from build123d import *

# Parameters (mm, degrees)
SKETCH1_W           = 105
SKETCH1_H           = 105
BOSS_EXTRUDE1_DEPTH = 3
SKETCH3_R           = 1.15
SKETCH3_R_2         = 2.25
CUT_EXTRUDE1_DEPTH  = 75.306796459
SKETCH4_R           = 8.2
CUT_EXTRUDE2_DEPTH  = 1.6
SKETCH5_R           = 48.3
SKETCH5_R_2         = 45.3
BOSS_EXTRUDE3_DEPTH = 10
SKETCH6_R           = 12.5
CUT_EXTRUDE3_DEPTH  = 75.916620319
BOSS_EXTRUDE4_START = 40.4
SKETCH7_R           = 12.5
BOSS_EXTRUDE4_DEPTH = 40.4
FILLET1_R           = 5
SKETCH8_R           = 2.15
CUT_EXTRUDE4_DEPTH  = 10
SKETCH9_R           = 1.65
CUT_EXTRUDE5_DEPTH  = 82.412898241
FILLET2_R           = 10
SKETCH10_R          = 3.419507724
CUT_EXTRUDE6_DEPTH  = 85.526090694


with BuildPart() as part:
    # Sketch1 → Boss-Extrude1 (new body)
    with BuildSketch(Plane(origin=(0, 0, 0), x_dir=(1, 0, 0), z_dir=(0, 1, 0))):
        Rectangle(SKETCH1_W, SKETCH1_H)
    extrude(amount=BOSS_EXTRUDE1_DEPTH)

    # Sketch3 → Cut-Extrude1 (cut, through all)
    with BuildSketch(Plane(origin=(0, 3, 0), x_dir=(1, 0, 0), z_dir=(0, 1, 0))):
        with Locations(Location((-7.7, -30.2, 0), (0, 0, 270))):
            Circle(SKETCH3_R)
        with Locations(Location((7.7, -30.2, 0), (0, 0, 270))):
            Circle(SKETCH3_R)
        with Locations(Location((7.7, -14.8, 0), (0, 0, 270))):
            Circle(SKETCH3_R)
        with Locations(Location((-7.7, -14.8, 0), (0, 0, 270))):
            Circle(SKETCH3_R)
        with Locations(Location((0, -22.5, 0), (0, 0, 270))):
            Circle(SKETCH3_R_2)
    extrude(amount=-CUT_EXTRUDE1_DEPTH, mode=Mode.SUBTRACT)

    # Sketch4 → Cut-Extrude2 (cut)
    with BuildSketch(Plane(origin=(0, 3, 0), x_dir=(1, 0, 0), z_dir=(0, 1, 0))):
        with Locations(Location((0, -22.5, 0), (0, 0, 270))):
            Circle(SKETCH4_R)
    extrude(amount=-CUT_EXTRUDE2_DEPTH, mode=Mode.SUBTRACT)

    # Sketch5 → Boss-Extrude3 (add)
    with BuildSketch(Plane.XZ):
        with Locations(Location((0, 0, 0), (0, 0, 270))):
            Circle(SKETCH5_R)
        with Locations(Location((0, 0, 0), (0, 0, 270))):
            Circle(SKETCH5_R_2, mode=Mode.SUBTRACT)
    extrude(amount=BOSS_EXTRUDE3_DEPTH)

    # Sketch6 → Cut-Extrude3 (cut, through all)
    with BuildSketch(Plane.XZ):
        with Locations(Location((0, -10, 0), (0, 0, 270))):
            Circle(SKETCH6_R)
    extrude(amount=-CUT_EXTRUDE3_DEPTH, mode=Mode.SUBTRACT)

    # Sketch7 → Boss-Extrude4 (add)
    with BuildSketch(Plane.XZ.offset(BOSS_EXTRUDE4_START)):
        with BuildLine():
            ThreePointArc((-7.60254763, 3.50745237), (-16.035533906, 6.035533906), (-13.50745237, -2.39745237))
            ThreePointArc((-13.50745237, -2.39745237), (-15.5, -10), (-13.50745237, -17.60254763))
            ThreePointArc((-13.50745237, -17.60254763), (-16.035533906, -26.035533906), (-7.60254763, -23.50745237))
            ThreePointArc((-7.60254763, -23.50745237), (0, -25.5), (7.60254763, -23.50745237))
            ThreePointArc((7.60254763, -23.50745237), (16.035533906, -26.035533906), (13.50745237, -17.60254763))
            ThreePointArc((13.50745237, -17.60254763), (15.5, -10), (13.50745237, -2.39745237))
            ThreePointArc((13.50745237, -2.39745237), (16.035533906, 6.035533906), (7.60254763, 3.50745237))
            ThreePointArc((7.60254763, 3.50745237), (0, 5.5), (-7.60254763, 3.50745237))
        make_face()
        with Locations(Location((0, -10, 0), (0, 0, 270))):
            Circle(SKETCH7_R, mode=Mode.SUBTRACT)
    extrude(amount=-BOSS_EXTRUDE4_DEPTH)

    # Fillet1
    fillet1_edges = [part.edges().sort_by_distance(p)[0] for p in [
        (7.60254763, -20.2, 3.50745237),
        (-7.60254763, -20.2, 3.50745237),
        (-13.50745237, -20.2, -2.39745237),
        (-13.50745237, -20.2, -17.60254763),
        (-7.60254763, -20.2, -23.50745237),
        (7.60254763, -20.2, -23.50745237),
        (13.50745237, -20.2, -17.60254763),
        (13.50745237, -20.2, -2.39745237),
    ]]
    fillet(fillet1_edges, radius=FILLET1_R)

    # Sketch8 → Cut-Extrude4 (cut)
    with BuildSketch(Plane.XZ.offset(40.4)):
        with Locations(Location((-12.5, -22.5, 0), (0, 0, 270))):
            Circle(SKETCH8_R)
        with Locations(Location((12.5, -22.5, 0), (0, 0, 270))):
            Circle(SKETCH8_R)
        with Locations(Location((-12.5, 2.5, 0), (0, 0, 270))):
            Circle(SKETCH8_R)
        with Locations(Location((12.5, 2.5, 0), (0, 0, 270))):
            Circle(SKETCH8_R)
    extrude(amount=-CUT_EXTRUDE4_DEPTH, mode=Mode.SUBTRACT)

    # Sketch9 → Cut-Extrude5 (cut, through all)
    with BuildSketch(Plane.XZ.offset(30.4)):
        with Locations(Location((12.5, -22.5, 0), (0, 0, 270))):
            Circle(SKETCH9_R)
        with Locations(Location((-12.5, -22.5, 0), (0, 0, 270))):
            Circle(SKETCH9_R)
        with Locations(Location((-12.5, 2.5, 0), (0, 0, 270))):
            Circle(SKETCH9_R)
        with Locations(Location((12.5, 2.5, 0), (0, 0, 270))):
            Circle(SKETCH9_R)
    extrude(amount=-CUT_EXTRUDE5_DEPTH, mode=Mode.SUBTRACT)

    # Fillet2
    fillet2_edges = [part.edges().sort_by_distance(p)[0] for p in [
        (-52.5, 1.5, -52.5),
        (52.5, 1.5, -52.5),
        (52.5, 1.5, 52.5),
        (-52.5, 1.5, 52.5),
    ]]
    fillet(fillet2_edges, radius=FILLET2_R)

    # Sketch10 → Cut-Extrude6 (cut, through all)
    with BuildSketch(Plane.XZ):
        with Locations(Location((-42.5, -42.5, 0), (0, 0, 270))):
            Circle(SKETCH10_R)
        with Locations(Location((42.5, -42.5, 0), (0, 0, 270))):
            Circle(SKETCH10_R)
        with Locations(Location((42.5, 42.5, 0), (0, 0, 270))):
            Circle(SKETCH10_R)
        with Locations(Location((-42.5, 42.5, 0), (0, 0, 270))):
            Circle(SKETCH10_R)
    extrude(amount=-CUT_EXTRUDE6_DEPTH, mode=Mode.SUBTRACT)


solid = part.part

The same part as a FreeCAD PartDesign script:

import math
import FreeCAD as App
import Part
import Sketcher
from FreeCAD import Vector
Q = App.Units.Quantity


def edges_at(feature, points):
    """Names of the edges that pass closest to the given points."""
    edges = feature.Shape.Edges
    near = lambda p: min(range(len(edges)), key=lambda i: edges[i].distToShape(Part.Vertex(*p))[0])
    return sorted({f"Edge{near(p) + 1}" for p in points})

doc = App.newDocument("Part")
body = doc.addObject("PartDesign::Body", "Body")

sketch1 = body.newObject("Sketcher::SketchObject", "Sketch")
sketch1.AttachmentSupport = (doc.getObject("XZ_Plane"), [""])
sketch1.MapMode = "FlatFace"
sketch1.addGeometry([
    Part.LineSegment(Vector(-52, -52, 0), Vector(-52, 52, 0)),
    Part.LineSegment(Vector(-52, 52, 0), Vector(52, 52, 0)),
    Part.LineSegment(Vector(52, 52, 0), Vector(52, -52, 0)),
    Part.LineSegment(Vector(52, -52, 0), Vector(-52, -52, 0)),
], False)
sketch1.addConstraint([
    Sketcher.Constraint("Coincident", 0, 2, 1, 1),
    Sketcher.Constraint("Coincident", 1, 2, 2, 1),
    Sketcher.Constraint("Coincident", 2, 2, 3, 1),
    Sketcher.Constraint("Coincident", 3, 2, 0, 1),
    Sketcher.Constraint("Vertical", 0),
    Sketcher.Constraint("Horizontal", 1),
    Sketcher.Constraint("Vertical", 2),
    Sketcher.Constraint("Horizontal", 3),
    Sketcher.Constraint("Symmetric", 0, 2, 2, 2, -1, 1),
    Sketcher.Constraint("Equal", 3, 0),
    Sketcher.Constraint("DistanceX", 1, 1, 1, 2, Q("105 mm")),
])
pad1 = body.newObject("PartDesign::Pad", "Pad")
pad1.Profile = sketch1
pad1.Length = 3
pad1.Reversed = True

sketch2 = body.newObject("Sketcher::SketchObject", "Sketch001")
sketch2.AttachmentSupport = (doc.getObject("XZ_Plane"), [""])
sketch2.MapMode = "FlatFace"
sketch2.AttachmentOffset = App.Placement(Vector(0, 0, -3), App.Rotation())
sketch2.addGeometry([
    Part.Circle(Vector(-7.7, 30.2, 0), Vector(0, 0, 1), 1.1),
    Part.Circle(Vector(7.7, 30.2, 0), Vector(0, 0, 1), 1.1),
    Part.Circle(Vector(7.7, 14.8, 0), Vector(0, 0, 1), 1.1),
    Part.Circle(Vector(-7.7, 14.8, 0), Vector(0, 0, 1), 1.1),
    Part.Circle(Vector(0, 22.5, 0), Vector(0, 0, 1), 2.2),
], False)
sketch2.addConstraint([
    Sketcher.Constraint("Equal", 0, 1),
    Sketcher.Constraint("Equal", 1, 2),
    Sketcher.Constraint("Equal", 2, 3),
    Sketcher.Constraint("Symmetric", 0, 3, 1, 3, -2),
    Sketcher.Constraint("Symmetric", 2, 3, 3, 3, -2),
    Sketcher.Constraint("PointOnObject", 4, 3, -2),
    Sketcher.Constraint("Vertical", 1, 3, 2, 3),
    Sketcher.Constraint("Diameter", 0, Q("2.3 mm")),
    Sketcher.Constraint("Diameter", 4, Q("4.5 mm")),
    Sketcher.Constraint("DistanceX", 0, 3, -1, 1, Q("7.7 mm")),
    Sketcher.Constraint("DistanceY", -1, 1, 0, 3, Q("30.2 mm")),
    Sketcher.Constraint("DistanceY", -1, 1, 2, 3, Q("14.8 mm")),
    Sketcher.Constraint("DistanceY", -1, 1, 4, 3, Q("22.5 mm")),
])
pocket1 = body.newObject("PartDesign::Pocket", "Pocket")
pocket1.Profile = sketch2
pocket1.Type = "ThroughAll"
pocket1.Reversed = True

sketch3 = body.newObject("Sketcher::SketchObject", "Sketch002")
sketch3.AttachmentSupport = (doc.getObject("XZ_Plane"), [""])
sketch3.MapMode = "FlatFace"
sketch3.AttachmentOffset = App.Placement(Vector(0, 0, -3), App.Rotation())
sketch3.addGeometry(Part.Circle(Vector(0, 22, 0), Vector(0, 0, 1), 8), False)
sketch3.addConstraint([
    Sketcher.Constraint("PointOnObject", 0, 3, -2),
    Sketcher.Constraint("Diameter", 0, Q("16.4 mm")),
    Sketcher.Constraint("DistanceY", -1, 1, 0, 3, Q("22.5 mm")),
])
pocket2 = body.newObject("PartDesign::Pocket", "Pocket001")
pocket2.Profile = sketch3
pocket2.Length = 1.6
pocket2.Reversed = True

sketch4 = body.newObject("Sketcher::SketchObject", "Sketch003")
sketch4.AttachmentSupport = (doc.getObject("XZ_Plane"), [""])
sketch4.MapMode = "FlatFace"
sketch4.addGeometry([
    Part.Circle(Vector(0, 0, 0), Vector(0, 0, 1), 48),
    Part.Circle(Vector(0, 0, 0), Vector(0, 0, 1), 45),
], False)
sketch4.addConstraint([
    Sketcher.Constraint("Coincident", 0, 3, -1, 1),
    Sketcher.Constraint("Coincident", 1, 3, -1, 1),
    Sketcher.Constraint("Diameter", 0, Q("96.6 mm")),
    Sketcher.Constraint("Diameter", 1, Q("90.6 mm")),
])
pad2 = body.newObject("PartDesign::Pad", "Pad001")
pad2.Profile = sketch4
pad2.Length = 10

sketch5 = body.newObject("Sketcher::SketchObject", "Sketch004")
sketch5.AttachmentSupport = (doc.getObject("XZ_Plane"), [""])
sketch5.MapMode = "FlatFace"
sketch5.addGeometry(Part.Circle(Vector(0, -10, 0), Vector(0, 0, 1), 12), False)
sketch5.addConstraint([
    Sketcher.Constraint("PointOnObject", 0, 3, -2),
    Sketcher.Constraint("Diameter", 0, Q("25 mm")),
    Sketcher.Constraint("DistanceY", 0, 3, -1, 1, Q("10 mm")),
])
pocket3 = body.newObject("PartDesign::Pocket", "Pocket002")
pocket3.Profile = sketch5
pocket3.Type = "ThroughAll"

sketch6 = body.newObject("Sketcher::SketchObject", "Sketch005")
sketch6.AttachmentSupport = (doc.getObject("XZ_Plane"), [""])
sketch6.MapMode = "FlatFace"
sketch6.AttachmentOffset = App.Placement(Vector(0, 0, 40.4), App.Rotation())
sketch6.addGeometry([
    Part.ArcOfCircle(Part.Circle(Vector(-12, 2, 0), Vector(0, 0, 1), 5), math.radians(12), math.radians(258)),
    Part.ArcOfCircle(Part.Circle(Vector(0, -10, 0), Vector(0, 0, 1), 15), math.radians(151), math.radians(209)),
    Part.ArcOfCircle(Part.Circle(Vector(-12, -22, 0), Vector(0, 0, 1), 5), math.radians(102), math.radians(348)),
    Part.ArcOfCircle(Part.Circle(Vector(0, -10, 0), Vector(0, 0, 1), 15), math.radians(-119), math.radians(-61)),
    Part.ArcOfCircle(Part.Circle(Vector(12, -22, 0), Vector(0, 0, 1), 5), math.radians(-168), math.radians(78)),
    Part.ArcOfCircle(Part.Circle(Vector(0, -10, 0), Vector(0, 0, 1), 15), math.radians(-29), math.radians(29)),
    Part.ArcOfCircle(Part.Circle(Vector(12, 2, 0), Vector(0, 0, 1), 5), math.radians(-78), math.radians(168)),
    Part.ArcOfCircle(Part.Circle(Vector(0, -10, 0), Vector(0, 0, 1), 15), math.radians(61), math.radians(119)),
    Part.Circle(Vector(0, -10, 0), Vector(0, 0, 1), 12),
], False)
sketch6.addConstraint([
    Sketcher.Constraint("Coincident", 0, 2, 1, 1),
    Sketcher.Constraint("Coincident", 1, 2, 2, 1),
    Sketcher.Constraint("Coincident", 2, 2, 3, 1),
    Sketcher.Constraint("Coincident", 3, 2, 4, 1),
    Sketcher.Constraint("Coincident", 4, 2, 5, 1),
    Sketcher.Constraint("Coincident", 5, 2, 6, 1),
    Sketcher.Constraint("Coincident", 6, 2, 7, 1),
    Sketcher.Constraint("Coincident", 7, 2, 0, 1),
    Sketcher.Constraint("Coincident", 3, 3, 1, 3),
    Sketcher.Constraint("Coincident", 5, 3, 1, 3),
    Sketcher.Constraint("Coincident", 7, 3, 1, 3),
    Sketcher.Constraint("Coincident", 8, 3, 1, 3),
    Sketcher.Constraint("Equal", 0, 2),
    Sketcher.Constraint("Equal", 1, 3),
    Sketcher.Constraint("Equal", 2, 4),
    Sketcher.Constraint("Equal", 3, 5),
    Sketcher.Constraint("Equal", 4, 6),
    Sketcher.Constraint("Equal", 5, 7),
    Sketcher.Constraint("Symmetric", 2, 3, 4, 3, -2),
    Sketcher.Constraint("Symmetric", 0, 3, 6, 3, -2),
    Sketcher.Constraint("PointOnObject", 1, 3, -2),
    Sketcher.Constraint("Vertical", 0, 3, 2, 3),
    Sketcher.Constraint("Vertical", 0, 2, 1, 2),
    Sketcher.Constraint("Diameter", 8, Q("25 mm")),
    Sketcher.Constraint("Radius", 0, Q("5 mm")),
    Sketcher.Constraint("Radius", 1, Q("15.5 mm")),
    Sketcher.Constraint("DistanceY", 1, 3, -1, 1, Q("10 mm")),
    Sketcher.Constraint("DistanceY", 2, 3, 0, 3, Q("25 mm")),
    Sketcher.Constraint("DistanceX", 2, 3, 4, 3, Q("25 mm")),
])
pad3 = body.newObject("PartDesign::Pad", "Pad002")
pad3.Profile = sketch6
pad3.Length = 40.4
pad3.Reversed = True
doc.recompute()

fillet = body.newObject("PartDesign::Fillet", "Fillet")
fillet.Base = (pad3, edges_at(pad3, [
    (7.603, -20.2, 3.507),
    (-7.603, -20.2, 3.507),
    (-13.507, -20.2, -2.397),
    (-13.507, -20.2, -17.603),
    (-7.603, -20.2, -23.507),
    (7.603, -20.2, -23.507),
    (13.507, -20.2, -17.603),
    (13.507, -20.2, -2.397),
]))
fillet.Radius = 5

sketch7 = body.newObject("Sketcher::SketchObject", "Sketch006")
sketch7.AttachmentSupport = (doc.getObject("XZ_Plane"), [""])
sketch7.MapMode = "FlatFace"
sketch7.AttachmentOffset = App.Placement(Vector(0, 0, 40.4), App.Rotation())
sketch7.addGeometry([
    Part.Circle(Vector(-12.5, -22.5, 0), Vector(0, 0, 1), 2.1),
    Part.Circle(Vector(12.5, -22.5, 0), Vector(0, 0, 1), 2.1),
    Part.Circle(Vector(-12.5, 2.5, 0), Vector(0, 0, 1), 2.1),
    Part.Circle(Vector(12.5, 2.5, 0), Vector(0, 0, 1), 2.1),
], False)
sketch7.addConstraint([
    Sketcher.Constraint("Equal", 0, 1),
    Sketcher.Constraint("Equal", 1, 2),
    Sketcher.Constraint("Equal", 2, 3),
    Sketcher.Constraint("Symmetric", 0, 3, 1, 3, -2),
    Sketcher.Constraint("Symmetric", 2, 3, 3, 3, -2),
    Sketcher.Constraint("Vertical", 0, 3, 2, 3),
    Sketcher.Constraint("Diameter", 0, Q("4.3 mm")),
    Sketcher.Constraint("DistanceX", 0, 3, 1, 3, Q("25 mm")),
    Sketcher.Constraint("DistanceY", 0, 3, 2, 3, Q("25 mm")),
    Sketcher.Constraint("DistanceY", 0, 3, -1, 1, Q("22.5 mm")),
])
pocket4 = body.newObject("PartDesign::Pocket", "Pocket003")
pocket4.Profile = sketch7
pocket4.Length = 10

sketch8 = body.newObject("Sketcher::SketchObject", "Sketch007")
sketch8.AttachmentSupport = (doc.getObject("XZ_Plane"), [""])
sketch8.MapMode = "FlatFace"
sketch8.AttachmentOffset = App.Placement(Vector(0, 0, 30.4), App.Rotation())
sketch8.addGeometry([
    Part.Circle(Vector(12.5, -22.5, 0), Vector(0, 0, 1), 1.6),
    Part.Circle(Vector(-12.5, -22.5, 0), Vector(0, 0, 1), 1.6),
    Part.Circle(Vector(-12.5, 2.5, 0), Vector(0, 0, 1), 1.6),
    Part.Circle(Vector(12.5, 2.5, 0), Vector(0, 0, 1), 1.6),
], False)
sketch8.addConstraint([
    Sketcher.Constraint("Equal", 0, 1),
    Sketcher.Constraint("Equal", 1, 2),
    Sketcher.Constraint("Equal", 2, 3),
    Sketcher.Constraint("Symmetric", 0, 3, 1, 3, -2),
    Sketcher.Constraint("Symmetric", 2, 3, 3, 3, -2),
    Sketcher.Constraint("Vertical", 1, 3, 2, 3),
    Sketcher.Constraint("Diameter", 0, Q("3.3 mm")),
    Sketcher.Constraint("DistanceX", 1, 3, 0, 3, Q("25 mm")),
    Sketcher.Constraint("DistanceY", 1, 3, 2, 3, Q("25 mm")),
    Sketcher.Constraint("DistanceY", 0, 3, -1, 1, Q("22.5 mm")),
])
pocket5 = body.newObject("PartDesign::Pocket", "Pocket004")
pocket5.Profile = sketch8
pocket5.Type = "ThroughAll"
doc.recompute()

fillet2 = body.newObject("PartDesign::Fillet", "Fillet001")
fillet2.Base = (pocket5, edges_at(pocket5, [
    (-52.5, 1.5, -52.5),
    (52.5, 1.5, -52.5),
    (52.5, 1.5, 52.5),
    (-52.5, 1.5, 52.5),
]))
fillet2.Radius = 10

sketch9 = body.newObject("Sketcher::SketchObject", "Sketch008")
sketch9.AttachmentSupport = (doc.getObject("XZ_Plane"), [""])
sketch9.MapMode = "FlatFace"
sketch9.addGeometry([
    Part.Circle(Vector(-42.5, -42.5, 0), Vector(0, 0, 1), 3.4),
    Part.Circle(Vector(42.5, -42.5, 0), Vector(0, 0, 1), 3.4),
    Part.Circle(Vector(42.5, 42.5, 0), Vector(0, 0, 1), 3.4),
    Part.Circle(Vector(-42.5, 42.5, 0), Vector(0, 0, 1), 3.4),
], False)
sketch9.addConstraint([
    Sketcher.Constraint("Equal", 0, 1),
    Sketcher.Constraint("Equal", 1, 2),
    Sketcher.Constraint("Equal", 2, 3),
    Sketcher.Constraint("Symmetric", 0, 3, 2, 3, -1, 1),
    Sketcher.Constraint("Symmetric", 1, 3, 3, 3, -1, 1),
    Sketcher.Constraint("Symmetric", 0, 3, 1, 3, -2),
    Sketcher.Constraint("DistanceX", 0, 3, 1, 3, Q("85 mm")),
    Sketcher.Constraint("DistanceY", 1, 3, 2, 3, Q("85 mm")),
    Sketcher.Constraint("Diameter", 0, Q("6.839015 mm")),
])
pocket6 = body.newObject("PartDesign::Pocket", "Pocket005")
pocket6.Profile = sketch9
pocket6.Type = "ThroughAll"

doc.recompute()
